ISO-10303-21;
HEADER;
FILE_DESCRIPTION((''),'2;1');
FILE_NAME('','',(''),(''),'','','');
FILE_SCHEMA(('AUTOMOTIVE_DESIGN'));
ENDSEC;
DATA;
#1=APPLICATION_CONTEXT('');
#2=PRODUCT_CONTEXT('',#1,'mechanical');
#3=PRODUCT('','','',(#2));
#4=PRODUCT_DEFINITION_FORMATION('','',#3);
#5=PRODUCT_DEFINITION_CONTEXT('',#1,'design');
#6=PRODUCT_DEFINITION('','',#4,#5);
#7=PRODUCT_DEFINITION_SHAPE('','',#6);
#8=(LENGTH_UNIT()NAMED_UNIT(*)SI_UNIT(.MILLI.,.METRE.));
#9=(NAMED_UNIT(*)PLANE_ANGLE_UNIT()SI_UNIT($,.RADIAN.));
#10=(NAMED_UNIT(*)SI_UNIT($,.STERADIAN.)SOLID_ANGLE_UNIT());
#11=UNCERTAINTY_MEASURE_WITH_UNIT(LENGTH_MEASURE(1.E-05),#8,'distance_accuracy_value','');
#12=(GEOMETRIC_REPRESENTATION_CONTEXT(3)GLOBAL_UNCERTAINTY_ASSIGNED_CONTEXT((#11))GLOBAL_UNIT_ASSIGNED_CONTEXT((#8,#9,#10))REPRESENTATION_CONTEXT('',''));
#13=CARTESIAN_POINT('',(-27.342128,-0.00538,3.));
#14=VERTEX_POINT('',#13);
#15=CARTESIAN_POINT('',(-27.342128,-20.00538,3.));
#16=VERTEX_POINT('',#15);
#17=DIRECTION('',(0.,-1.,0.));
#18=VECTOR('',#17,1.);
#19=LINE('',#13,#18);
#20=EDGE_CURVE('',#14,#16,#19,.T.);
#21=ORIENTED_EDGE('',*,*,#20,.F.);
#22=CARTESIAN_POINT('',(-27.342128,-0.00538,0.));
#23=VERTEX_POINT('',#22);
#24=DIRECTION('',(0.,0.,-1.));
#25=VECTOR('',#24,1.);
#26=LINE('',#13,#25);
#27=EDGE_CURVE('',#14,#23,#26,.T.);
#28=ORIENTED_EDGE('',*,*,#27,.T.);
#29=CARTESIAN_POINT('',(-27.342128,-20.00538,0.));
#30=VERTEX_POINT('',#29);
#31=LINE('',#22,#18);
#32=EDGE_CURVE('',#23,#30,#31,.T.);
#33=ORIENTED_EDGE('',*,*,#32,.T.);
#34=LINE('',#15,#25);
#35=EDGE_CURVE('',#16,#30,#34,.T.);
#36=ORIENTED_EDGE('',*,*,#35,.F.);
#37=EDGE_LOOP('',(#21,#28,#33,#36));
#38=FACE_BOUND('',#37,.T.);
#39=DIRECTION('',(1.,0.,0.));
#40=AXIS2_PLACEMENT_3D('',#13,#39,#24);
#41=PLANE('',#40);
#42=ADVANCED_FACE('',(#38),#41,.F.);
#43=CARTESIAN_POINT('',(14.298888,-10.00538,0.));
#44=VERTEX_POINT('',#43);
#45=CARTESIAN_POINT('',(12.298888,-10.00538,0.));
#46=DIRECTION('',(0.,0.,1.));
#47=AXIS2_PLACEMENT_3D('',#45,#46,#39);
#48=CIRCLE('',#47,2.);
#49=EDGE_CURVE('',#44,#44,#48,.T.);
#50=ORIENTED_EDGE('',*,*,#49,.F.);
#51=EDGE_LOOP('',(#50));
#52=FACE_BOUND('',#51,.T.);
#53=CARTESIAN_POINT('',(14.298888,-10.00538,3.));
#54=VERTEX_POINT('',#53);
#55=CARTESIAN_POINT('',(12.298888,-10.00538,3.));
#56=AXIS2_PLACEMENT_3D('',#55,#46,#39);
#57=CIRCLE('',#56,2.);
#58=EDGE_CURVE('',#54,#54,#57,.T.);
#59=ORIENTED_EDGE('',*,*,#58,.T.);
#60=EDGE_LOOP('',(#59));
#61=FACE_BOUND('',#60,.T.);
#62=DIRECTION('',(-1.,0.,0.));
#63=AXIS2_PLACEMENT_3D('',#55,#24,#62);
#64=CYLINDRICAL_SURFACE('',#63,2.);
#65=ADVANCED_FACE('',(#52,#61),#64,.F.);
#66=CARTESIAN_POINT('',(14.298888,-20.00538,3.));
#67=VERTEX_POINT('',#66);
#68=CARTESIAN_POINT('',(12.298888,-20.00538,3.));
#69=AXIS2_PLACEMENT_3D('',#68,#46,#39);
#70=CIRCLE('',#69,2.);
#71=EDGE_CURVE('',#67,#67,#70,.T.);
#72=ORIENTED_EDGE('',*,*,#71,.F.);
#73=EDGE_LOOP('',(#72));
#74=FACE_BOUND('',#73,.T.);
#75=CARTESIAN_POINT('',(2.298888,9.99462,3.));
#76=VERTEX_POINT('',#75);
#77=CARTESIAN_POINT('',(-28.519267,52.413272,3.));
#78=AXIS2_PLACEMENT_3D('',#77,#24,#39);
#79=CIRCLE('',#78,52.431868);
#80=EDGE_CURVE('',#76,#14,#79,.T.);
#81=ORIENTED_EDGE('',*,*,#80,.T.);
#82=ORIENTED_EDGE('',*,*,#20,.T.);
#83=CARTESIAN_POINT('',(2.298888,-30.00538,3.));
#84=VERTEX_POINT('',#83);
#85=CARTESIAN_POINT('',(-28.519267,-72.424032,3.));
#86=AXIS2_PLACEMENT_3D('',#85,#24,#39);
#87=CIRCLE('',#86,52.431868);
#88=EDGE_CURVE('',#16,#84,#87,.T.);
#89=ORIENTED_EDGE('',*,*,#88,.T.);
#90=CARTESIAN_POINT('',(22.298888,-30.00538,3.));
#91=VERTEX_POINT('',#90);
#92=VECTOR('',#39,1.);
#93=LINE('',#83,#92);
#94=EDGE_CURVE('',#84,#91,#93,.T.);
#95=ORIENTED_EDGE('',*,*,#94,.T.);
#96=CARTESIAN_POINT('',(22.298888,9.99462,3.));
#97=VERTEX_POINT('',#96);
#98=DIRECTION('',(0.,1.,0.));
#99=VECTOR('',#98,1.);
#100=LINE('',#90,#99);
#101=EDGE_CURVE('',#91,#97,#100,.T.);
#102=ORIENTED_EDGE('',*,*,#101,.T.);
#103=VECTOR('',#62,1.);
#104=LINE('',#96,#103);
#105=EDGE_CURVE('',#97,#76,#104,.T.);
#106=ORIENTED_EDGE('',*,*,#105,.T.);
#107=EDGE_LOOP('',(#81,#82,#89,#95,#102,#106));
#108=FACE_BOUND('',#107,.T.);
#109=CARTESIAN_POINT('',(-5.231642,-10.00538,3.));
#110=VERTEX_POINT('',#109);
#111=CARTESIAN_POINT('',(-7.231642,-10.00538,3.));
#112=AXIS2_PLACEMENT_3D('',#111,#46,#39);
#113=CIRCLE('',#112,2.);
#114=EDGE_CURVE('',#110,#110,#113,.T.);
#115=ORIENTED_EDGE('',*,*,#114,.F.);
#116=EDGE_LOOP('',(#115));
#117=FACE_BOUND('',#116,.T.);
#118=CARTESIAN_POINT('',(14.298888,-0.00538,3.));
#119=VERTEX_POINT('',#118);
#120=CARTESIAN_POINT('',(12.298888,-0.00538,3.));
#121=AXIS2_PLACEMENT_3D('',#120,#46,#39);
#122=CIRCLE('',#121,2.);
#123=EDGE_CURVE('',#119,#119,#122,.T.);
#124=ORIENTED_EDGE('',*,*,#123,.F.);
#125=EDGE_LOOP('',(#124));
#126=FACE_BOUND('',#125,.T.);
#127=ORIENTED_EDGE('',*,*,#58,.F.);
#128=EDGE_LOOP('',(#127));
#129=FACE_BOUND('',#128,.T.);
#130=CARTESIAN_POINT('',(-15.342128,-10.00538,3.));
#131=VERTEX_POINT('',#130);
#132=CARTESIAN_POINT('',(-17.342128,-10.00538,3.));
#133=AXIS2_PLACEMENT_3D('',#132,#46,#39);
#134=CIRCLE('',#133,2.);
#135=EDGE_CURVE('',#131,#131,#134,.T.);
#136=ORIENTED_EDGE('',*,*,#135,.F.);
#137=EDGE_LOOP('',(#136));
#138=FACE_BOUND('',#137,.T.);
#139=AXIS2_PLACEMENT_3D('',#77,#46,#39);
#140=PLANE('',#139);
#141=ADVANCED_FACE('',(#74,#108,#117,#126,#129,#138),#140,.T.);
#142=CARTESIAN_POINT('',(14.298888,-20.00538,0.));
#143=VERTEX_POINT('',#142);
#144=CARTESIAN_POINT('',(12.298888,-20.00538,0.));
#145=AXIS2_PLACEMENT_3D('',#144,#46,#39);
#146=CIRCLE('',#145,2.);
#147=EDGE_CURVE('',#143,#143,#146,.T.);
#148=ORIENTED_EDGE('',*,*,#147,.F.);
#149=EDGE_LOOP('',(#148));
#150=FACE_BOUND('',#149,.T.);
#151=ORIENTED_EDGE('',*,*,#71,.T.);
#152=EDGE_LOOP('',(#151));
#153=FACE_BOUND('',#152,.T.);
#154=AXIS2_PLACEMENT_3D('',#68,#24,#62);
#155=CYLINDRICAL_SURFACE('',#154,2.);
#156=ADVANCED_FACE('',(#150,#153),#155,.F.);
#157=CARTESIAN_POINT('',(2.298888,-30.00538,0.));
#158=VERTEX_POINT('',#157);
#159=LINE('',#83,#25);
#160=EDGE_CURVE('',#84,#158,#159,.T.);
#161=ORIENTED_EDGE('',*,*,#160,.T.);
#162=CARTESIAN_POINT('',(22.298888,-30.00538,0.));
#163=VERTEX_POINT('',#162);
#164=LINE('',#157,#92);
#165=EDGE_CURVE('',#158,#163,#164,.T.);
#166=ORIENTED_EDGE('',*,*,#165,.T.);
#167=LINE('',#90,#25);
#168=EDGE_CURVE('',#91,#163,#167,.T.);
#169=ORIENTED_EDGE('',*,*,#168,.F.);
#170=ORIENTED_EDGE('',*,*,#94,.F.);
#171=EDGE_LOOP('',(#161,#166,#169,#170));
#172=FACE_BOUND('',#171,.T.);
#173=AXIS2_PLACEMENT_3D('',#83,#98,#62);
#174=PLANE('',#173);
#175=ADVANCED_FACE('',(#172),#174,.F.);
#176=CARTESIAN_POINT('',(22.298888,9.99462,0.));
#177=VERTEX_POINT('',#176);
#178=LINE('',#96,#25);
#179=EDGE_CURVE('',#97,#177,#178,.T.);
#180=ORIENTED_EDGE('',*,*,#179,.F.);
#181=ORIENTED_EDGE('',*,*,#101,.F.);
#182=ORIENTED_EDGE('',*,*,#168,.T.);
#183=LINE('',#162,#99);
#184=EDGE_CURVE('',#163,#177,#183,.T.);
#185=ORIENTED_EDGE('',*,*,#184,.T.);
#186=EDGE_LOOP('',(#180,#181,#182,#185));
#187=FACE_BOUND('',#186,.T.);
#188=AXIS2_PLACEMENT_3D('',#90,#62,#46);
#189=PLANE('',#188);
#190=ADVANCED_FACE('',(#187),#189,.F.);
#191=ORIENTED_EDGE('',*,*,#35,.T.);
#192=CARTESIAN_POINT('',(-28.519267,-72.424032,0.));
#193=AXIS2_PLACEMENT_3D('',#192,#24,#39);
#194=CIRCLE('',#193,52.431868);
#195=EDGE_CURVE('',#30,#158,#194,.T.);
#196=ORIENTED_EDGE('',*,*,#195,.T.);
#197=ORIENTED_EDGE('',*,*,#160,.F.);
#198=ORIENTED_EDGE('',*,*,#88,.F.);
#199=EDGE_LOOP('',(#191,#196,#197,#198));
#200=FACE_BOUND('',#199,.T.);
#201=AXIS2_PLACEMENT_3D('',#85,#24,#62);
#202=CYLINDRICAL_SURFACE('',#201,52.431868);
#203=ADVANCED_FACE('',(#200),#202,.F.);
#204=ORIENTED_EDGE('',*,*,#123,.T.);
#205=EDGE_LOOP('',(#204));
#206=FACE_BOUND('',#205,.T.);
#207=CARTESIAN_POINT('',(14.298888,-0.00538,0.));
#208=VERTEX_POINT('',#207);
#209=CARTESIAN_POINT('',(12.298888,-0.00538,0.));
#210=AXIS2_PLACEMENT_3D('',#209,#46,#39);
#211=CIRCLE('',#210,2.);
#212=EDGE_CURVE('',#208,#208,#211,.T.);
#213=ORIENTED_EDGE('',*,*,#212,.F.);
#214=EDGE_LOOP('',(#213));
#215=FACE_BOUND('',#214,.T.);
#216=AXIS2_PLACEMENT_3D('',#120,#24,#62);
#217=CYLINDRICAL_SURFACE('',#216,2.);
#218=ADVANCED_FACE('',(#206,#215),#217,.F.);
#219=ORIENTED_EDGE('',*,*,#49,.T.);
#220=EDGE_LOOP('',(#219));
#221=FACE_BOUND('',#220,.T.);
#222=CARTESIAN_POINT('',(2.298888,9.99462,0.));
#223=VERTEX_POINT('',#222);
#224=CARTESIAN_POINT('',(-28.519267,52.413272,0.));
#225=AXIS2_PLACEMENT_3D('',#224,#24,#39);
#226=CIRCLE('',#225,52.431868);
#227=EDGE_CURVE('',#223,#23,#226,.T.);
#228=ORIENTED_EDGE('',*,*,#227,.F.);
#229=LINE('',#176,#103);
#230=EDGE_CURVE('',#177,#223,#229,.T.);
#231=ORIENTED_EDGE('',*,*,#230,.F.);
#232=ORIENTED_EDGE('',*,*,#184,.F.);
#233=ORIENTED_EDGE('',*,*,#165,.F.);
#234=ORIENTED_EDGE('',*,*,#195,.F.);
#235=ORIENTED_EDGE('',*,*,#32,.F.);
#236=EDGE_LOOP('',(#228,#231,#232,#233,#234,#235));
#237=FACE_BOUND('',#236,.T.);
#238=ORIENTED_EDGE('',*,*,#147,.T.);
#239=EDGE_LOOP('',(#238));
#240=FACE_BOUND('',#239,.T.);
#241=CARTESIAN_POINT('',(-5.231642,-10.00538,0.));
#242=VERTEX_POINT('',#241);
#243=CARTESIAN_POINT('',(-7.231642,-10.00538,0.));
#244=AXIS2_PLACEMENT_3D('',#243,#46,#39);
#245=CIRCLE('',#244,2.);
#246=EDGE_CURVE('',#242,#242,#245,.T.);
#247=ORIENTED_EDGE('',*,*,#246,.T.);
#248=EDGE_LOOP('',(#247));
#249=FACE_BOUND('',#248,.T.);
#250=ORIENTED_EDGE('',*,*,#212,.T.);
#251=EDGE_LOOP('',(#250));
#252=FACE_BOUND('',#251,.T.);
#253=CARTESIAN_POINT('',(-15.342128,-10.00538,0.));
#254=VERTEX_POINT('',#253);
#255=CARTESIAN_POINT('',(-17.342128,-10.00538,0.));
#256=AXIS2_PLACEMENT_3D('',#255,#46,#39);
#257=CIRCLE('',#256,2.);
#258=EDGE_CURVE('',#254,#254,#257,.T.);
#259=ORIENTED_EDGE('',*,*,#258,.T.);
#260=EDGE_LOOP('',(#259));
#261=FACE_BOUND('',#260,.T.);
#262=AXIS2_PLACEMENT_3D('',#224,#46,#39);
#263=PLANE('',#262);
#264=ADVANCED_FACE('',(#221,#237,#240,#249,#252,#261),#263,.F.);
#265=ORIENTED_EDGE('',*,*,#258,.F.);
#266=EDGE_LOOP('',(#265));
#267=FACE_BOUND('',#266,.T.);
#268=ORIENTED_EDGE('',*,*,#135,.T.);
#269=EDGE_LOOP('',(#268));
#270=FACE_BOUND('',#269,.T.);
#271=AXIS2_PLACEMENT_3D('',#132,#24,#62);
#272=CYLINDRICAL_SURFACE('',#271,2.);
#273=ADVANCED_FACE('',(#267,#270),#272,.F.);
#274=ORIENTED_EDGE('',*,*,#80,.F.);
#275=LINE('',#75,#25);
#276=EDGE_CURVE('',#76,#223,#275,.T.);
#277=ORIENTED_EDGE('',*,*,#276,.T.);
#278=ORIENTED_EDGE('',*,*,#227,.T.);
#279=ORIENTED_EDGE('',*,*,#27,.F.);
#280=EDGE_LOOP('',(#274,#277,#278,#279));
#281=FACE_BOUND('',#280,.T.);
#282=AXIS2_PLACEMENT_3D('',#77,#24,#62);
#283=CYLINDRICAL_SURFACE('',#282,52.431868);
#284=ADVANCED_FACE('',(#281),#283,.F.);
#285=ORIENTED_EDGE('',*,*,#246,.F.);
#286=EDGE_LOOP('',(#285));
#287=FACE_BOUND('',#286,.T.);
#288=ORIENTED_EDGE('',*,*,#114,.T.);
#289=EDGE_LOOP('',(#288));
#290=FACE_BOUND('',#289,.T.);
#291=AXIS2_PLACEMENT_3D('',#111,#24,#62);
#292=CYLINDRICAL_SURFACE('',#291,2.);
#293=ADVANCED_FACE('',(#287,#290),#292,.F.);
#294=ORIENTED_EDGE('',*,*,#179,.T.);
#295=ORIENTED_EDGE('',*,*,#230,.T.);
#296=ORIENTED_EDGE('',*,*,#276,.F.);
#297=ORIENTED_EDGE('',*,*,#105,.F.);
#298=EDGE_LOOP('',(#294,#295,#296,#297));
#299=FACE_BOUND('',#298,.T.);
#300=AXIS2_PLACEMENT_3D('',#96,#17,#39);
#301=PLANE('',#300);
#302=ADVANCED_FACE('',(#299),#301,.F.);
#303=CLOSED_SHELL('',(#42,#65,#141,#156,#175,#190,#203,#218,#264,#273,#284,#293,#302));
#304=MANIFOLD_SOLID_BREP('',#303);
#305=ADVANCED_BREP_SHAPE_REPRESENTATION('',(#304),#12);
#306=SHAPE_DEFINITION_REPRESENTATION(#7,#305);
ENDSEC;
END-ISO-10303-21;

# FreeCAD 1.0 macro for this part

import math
import FreeCAD as App
import Part
import Sketcher
from FreeCAD import Vector

doc = App.newDocument("Part")
params = doc.addObject("Spreadsheet::Sheet", "Params")
for row, (alias, value) in enumerate([
    ("sketch1_diameter", "4 mm"),
    ("sketch1_width", "20 mm"),
    ("sketch1_height", "40 mm"),
    ("pad1_length", "3 mm"),
], start=1):
    params.set(f"A{row}", alias)
    params.set(f"B{row}", "=" + value)
    params.setAlias(f"B{row}", alias)

body = doc.addObject("PartDesign::Body", "Body")

# Sketch on XY plane
sketch1 = body.newObject("Sketcher::SketchObject", "Sketch")
sketch1.AttachmentSupport = (doc.getObject("XY_Plane"), [""])
sketch1.MapMode = "FlatFace"
sketch1.addGeometry([
    Part.LineSegment(Vector(-27.3, 0, 0), Vector(-27.3, -20, 0)),  # 0
    Part.ArcOfCircle(Part.Circle(Vector(-28.5, -72.4, 0), Vector(0, 0, 1), 52.4), math.radians(54), math.radians(89)),  # 1
    Part.LineSegment(Vector(2.3, -30, 0), Vector(22.3, -30, 0)),  # 2
    Part.LineSegment(Vector(22.3, -30, 0), Vector(22.3, 10, 0)),  # 3
    Part.LineSegment(Vector(22.3, 10, 0), Vector(2.3, 10, 0)),  # 4
    Part.ArcOfCircle(Part.Circle(Vector(-28.5, 52.4, 0), Vector(0, 0, 1), 52.4), math.radians(-89), math.radians(-54)),  # 5
    Part.Circle(Vector(12.3, -20, 0), Vector(0, 0, 1), 2),  # 6
    Part.Circle(Vector(-17.3, -10, 0), Vector(0, 0, 1), 2),  # 7
    Part.Circle(Vector(-7.2, -10, 0), Vector(0, 0, 1), 2),  # 8
    Part.Circle(Vector(12.3, -10, 0), Vector(0, 0, 1), 2),  # 9
    Part.Circle(Vector(12.3, 0, 0), Vector(0, 0, 1), 2),  # 10
], False)
sketch1.addConstraint([
    Sketcher.Constraint("Coincident", 0, 2, 1, 2),
    Sketcher.Constraint("Coincident", 1, 1, 2, 1),
    Sketcher.Constraint("Coincident", 2, 2, 3, 1),
    Sketcher.Constraint("Coincident", 3, 2, 4, 1),
    Sketcher.Constraint("Coincident", 4, 2, 5, 2),
    Sketcher.Constraint("Coincident", 5, 1, 0, 1),
    Sketcher.Constraint("Vertical", 0),
    Sketcher.Constraint("Horizontal", 2),
    Sketcher.Constraint("Vertical", 3),
    Sketcher.Constraint("Horizontal", 4),
    Sketcher.Constraint("Equal", 1, 5),
    Sketcher.Constraint("Equal", 6, 7),
    Sketcher.Constraint("Equal", 7, 8),
    Sketcher.Constraint("Equal", 8, 9),
    Sketcher.Constraint("Equal", 9, 10),
    Sketcher.Constraint("Horizontal", 7, 3, 8, 3),
    Sketcher.Constraint("Horizontal", 8, 3, 9, 3),
    Sketcher.Constraint("Horizontal", 6, 3, 0, 2),
    Sketcher.Constraint("Horizontal", 10, 3, 5, 1),
    Sketcher.Constraint("Vertical", 1, 3, 5, 3),
    Sketcher.Constraint("Vertical", 6, 3, 9, 3),
    Sketcher.Constraint("Vertical", 9, 3, 10, 3),
    Sketcher.Constraint("Vertical", 1, 1, 4, 2),
    Sketcher.Constraint("Equal", 4, 0),
    Sketcher.Constraint("Diameter", 6, 4.0),
    Sketcher.Constraint("DistanceX", 2, 1, 2, 2, 20.0),
    Sketcher.Constraint("DistanceY", 3, 1, 3, 2, 40.0),
    Sketcher.Constraint("DistanceY", 6, 3, 7, 3, 10.0),
    Sketcher.Constraint("DistanceX", 0, 2, 7, 3, 10.0),
    Sketcher.Constraint("DistanceX", 1, 1, 6, 3, 10.0),
    Sketcher.Constraint("Radius", 1, 52.431868),
    Sketcher.Constraint("DistanceY", 1, 3, -1, 1, 72.424032),
    Sketcher.Constraint("DistanceX", -1, 1, 6, 3, 12.298888),
    Sketcher.Constraint("DistanceY", 6, 3, -1, 1, 20.00538),
    Sketcher.Constraint("DistanceX", 8, 3, 6, 3, 19.530531),
])
sketch1.setExpression("Constraints[24]", "Params.sketch1_diameter")
sketch1.setExpression("Constraints[25]", "Params.sketch1_width")
sketch1.setExpression("Constraints[26]", "Params.sketch1_height")
pad1 = body.newObject("PartDesign::Pad", "Pad")
pad1.Profile = sketch1
pad1.setExpression("Length", "Params.pad1_length")

doc.recompute()
